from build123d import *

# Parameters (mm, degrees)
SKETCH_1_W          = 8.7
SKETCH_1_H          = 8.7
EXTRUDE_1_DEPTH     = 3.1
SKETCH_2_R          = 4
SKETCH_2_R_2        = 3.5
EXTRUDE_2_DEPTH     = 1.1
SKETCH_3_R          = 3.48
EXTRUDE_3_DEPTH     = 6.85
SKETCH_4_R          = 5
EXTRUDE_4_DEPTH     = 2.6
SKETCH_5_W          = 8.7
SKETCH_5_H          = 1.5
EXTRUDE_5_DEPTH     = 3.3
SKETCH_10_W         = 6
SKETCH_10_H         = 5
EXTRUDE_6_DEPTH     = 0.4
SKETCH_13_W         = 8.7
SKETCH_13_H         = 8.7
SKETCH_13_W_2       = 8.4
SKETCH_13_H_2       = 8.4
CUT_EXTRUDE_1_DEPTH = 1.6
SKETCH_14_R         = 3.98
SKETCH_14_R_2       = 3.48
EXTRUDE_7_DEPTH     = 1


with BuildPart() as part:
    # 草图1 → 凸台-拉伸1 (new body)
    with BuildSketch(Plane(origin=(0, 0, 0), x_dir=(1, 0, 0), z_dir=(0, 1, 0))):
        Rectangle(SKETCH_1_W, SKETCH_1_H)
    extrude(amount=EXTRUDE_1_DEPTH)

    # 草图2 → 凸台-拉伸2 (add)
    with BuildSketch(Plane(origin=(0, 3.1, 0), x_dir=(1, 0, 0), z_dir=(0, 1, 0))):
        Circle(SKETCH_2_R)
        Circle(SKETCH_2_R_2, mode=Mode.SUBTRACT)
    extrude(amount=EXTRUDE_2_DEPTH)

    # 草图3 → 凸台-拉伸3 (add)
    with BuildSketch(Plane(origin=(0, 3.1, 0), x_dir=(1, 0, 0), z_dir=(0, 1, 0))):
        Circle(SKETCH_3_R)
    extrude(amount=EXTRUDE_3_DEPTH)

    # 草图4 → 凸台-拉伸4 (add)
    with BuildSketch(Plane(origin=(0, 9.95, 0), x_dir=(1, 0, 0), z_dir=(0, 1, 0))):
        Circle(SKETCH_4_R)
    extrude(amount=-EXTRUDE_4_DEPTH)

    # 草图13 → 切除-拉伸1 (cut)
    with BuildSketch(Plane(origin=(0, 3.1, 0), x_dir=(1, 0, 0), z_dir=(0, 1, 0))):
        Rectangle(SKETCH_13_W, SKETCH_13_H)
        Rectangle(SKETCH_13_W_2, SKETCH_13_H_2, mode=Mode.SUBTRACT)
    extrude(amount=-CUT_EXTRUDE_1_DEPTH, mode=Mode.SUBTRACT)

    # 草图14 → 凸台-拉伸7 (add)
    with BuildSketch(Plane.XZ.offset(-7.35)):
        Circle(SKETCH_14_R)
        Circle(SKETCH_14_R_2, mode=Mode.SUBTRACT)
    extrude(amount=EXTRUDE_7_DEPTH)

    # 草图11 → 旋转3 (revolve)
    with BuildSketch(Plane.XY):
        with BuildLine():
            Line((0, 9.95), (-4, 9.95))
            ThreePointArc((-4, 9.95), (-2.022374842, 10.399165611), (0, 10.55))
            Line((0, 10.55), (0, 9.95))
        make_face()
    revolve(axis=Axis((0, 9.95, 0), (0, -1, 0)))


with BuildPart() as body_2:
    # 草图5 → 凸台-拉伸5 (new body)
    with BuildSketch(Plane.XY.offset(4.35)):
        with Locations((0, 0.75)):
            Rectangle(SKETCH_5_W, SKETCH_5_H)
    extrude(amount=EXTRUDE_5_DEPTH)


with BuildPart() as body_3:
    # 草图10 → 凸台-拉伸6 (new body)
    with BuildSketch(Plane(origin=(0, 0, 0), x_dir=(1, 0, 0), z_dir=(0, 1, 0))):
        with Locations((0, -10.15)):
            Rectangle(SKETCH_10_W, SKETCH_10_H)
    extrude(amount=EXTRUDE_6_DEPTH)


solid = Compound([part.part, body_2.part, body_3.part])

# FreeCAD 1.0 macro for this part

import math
import FreeCAD as App
import Part
import Sketcher

V = App.Vector

doc = App.newDocument("Part")
body = doc.addObject("PartDesign::Body", "Body")

# Sketch on XZ plane
sketch1 = doc.addObject("Sketcher::SketchObject", "Sketch")
body.addObject(sketch1)
sketch1.AttachmentSupport = (doc.XZ_Plane, [""])
sketch1.MapMode = "FlatFace"
sketch1.addGeometry(Part.LineSegment(V(-4.35, -4.35, 0), V(-4.35, 4.35, 0)), False)
sketch1.addGeometry(Part.LineSegment(V(-4.35, 4.35, 0), V(4.35, 4.35, 0)), False)
sketch1.addGeometry(Part.LineSegment(V(4.35, 4.35, 0), V(4.35, -4.35, 0)), False)
sketch1.addGeometry(Part.LineSegment(V(4.35, -4.35, 0), V(-4.35, -4.35, 0)), False)
sketch1.addConstraint(Sketcher.Constraint("Coincident", 0, 2, 1, 1))
sketch1.addConstraint(Sketcher.Constraint("Coincident", 1, 2, 2, 1))
sketch1.addConstraint(Sketcher.Constraint("Coincident", 2, 2, 3, 1))
sketch1.addConstraint(Sketcher.Constraint("Coincident", 3, 2, 0, 1))
sketch1.addConstraint(Sketcher.Constraint("Vertical", 0))
sketch1.addConstraint(Sketcher.Constraint("Horizontal", 1))
sketch1.addConstraint(Sketcher.Constraint("Vertical", 2))
sketch1.addConstraint(Sketcher.Constraint("Horizontal", 3))
sketch1.addConstraint(Sketcher.Constraint("Symmetric", 0, 2, 2, 2, -1, 1))
sketch1.addConstraint(Sketcher.Constraint("Equal", 3, 0))
sketch1.addConstraint(Sketcher.Constraint("DistanceX", 1, 1, 1, 2, 8.7))
pad1 = doc.addObject("PartDesign::Pad", "Pad")
body.addObject(pad1)
pad1.Profile = sketch1
pad1.Length = 3.1
pad1.Reversed = True

# Sketch on XZ plane
sketch2 = doc.addObject("Sketcher::SketchObject", "Sketch001")
body.addObject(sketch2)
sketch2.AttachmentSupport = (doc.XZ_Plane, [""])
sketch2.MapMode = "FlatFace"
sketch2.AttachmentOffset = App.Placement(V(0, 0, -3.1), App.Rotation())
sketch2.addGeometry(Part.Circle(V(0, 0, 0), V(0, 0, 1), 4), False)
sketch2.addGeometry(Part.Circle(V(0, 0, 0), V(0, 0, 1), 3.5), False)
sketch2.addConstraint(Sketcher.Constraint("Coincident", 0, 3, -1, 1))
sketch2.addConstraint(Sketcher.Constraint("Coincident", 1, 3, -1, 1))
sketch2.addConstraint(Sketcher.Constraint("Diameter", 0, 8.0))
sketch2.addConstraint(Sketcher.Constraint("Diameter", 1, 7.0))
pad2 = doc.addObject("PartDesign::Pad", "Pad001")
body.addObject(pad2)
pad2.Profile = sketch2
pad2.Length = 1.1
pad2.Reversed = True

# Sketch on XZ plane
sketch3 = doc.addObject("Sketcher::SketchObject", "Sketch002")
body.addObject(sketch3)
sketch3.AttachmentSupport = (doc.XZ_Plane, [""])
sketch3.MapMode = "FlatFace"
sketch3.AttachmentOffset = App.Placement(V(0, 0, -3.1), App.Rotation())
sketch3.addGeometry(Part.Circle(V(0, 0, 0), V(0, 0, 1), 3.48), False)
sketch3.addConstraint(Sketcher.Constraint("Coincident", 0, 3, -1, 1))
sketch3.addConstraint(Sketcher.Constraint("Diameter", 0, 6.96))
pad3 = doc.addObject("PartDesign::Pad", "Pad002")
body.addObject(pad3)
pad3.Profile = sketch3
pad3.Length = 6.85
pad3.Reversed = True

# Sketch on XZ plane
sketch4 = doc.addObject("Sketcher::SketchObject", "Sketch003")
body.addObject(sketch4)
sketch4.AttachmentSupport = (doc.XZ_Plane, [""])
sketch4.MapMode = "FlatFace"
sketch4.AttachmentOffset = App.Placement(V(0, 0, -9.95), App.Rotation())
sketch4.addGeometry(Part.Circle(V(0, 0, 0), V(0, 0, 1), 5), False)
sketch4.addConstraint(Sketcher.Constraint("Coincident", 0, 3, -1, 1))
sketch4.addConstraint(Sketcher.Constraint("Diameter", 0, 10.0))
pad4 = doc.addObject("PartDesign::Pad", "Pad003")
body.addObject(pad4)
pad4.Profile = sketch4
pad4.Length = 2.6

# Sketch on XZ plane
sketch5 = doc.addObject("Sketcher::SketchObject", "Sketch004")
body.addObject(sketch5)
sketch5.AttachmentSupport = (doc.XZ_Plane, [""])
sketch5.MapMode = "FlatFace"
sketch5.AttachmentOffset = App.Placement(V(0, 0, -3.1), App.Rotation())
sketch5.addGeometry(Part.LineSegment(V(-4.35, -4.35, 0), V(-4.35, 4.35, 0)), False)
sketch5.addGeometry(Part.LineSegment(V(-4.35, 4.35, 0), V(4.35, 4.35, 0)), False)
sketch5.addGeometry(Part.LineSegment(V(4.35, 4.35, 0), V(4.35, -4.35, 0)), False)
sketch5.addGeometry(Part.LineSegment(V(4.35, -4.35, 0), V(-4.35, -4.35, 0)), False)
sketch5.addGeometry(Part.LineSegment(V(4.2, 4.2, 0), V(-4.2, 4.2, 0)), False)
sketch5.addGeometry(Part.LineSegment(V(-4.2, 4.2, 0), V(-4.2, -4.2, 0)), False)
sketch5.addGeometry(Part.LineSegment(V(-4.2, -4.2, 0), V(4.2, -4.2, 0)), False)
sketch5.addGeometry(Part.LineSegment(V(4.2, -4.2, 0), V(4.2, 4.2, 0)), False)
sketch5.addConstraint(Sketcher.Constraint("Coincident", 0, 2, 1, 1))
sketch5.addConstraint(Sketcher.Constraint("Coincident", 1, 2, 2, 1))
sketch5.addConstraint(Sketcher.Constraint("Coincident", 2, 2, 3, 1))
sketch5.addConstraint(Sketcher.Constraint("Coincident", 3, 2, 0, 1))
sketch5.addConstraint(Sketcher.Constraint("Coincident", 4, 2, 5, 1))
sketch5.addConstraint(Sketcher.Constraint("Coincident", 5, 2, 6, 1))
sketch5.addConstraint(Sketcher.Constraint("Coincident", 6, 2, 7, 1))
sketch5.addConstraint(Sketcher.Constraint("Coincident", 7, 2, 4, 1))
sketch5.addConstraint(Sketcher.Constraint("Vertical", 0))
sketch5.addConstraint(Sketcher.Constraint("Horizontal", 1))
sketch5.addConstraint(Sketcher.Constraint("Vertical", 2))
sketch5.addConstraint(Sketcher.Constraint("Horizontal", 3))
sketch5.addConstraint(Sketcher.Constraint("Horizontal", 4))
sketch5.addConstraint(Sketcher.Constraint("Vertical", 5))
sketch5.addConstraint(Sketcher.Constraint("Horizontal", 6))
sketch5.addConstraint(Sketcher.Constraint("Vertical", 7))
sketch5.addConstraint(Sketcher.Constraint("Symmetric", 0, 2, 2, 2, -1, 1))
sketch5.addConstraint(Sketcher.Constraint("Symmetric", 4, 2, 6, 2, -1, 1))
sketch5.addConstraint(Sketcher.Constraint("Equal", 3, 0))
sketch5.addConstraint(Sketcher.Constraint("Equal", 6, 5))
sketch5.addConstraint(Sketcher.Constraint("DistanceX", 1, 1, 1, 2, 8.7))
sketch5.addConstraint(Sketcher.Constraint("DistanceX", 4, 2, 4, 1, 8.4))
pocket1 = doc.addObject("PartDesign::Pocket", "Pocket")
body.addObject(pocket1)
pocket1.Profile = sketch5
pocket1.Length = 1.6
pocket1.Reversed = True

# Sketch on XZ plane
sketch6 = doc.addObject("Sketcher::SketchObject", "Sketch005")
body.addObject(sketch6)
sketch6.AttachmentSupport = (doc.XZ_Plane, [""])
sketch6.MapMode = "FlatFace"
sketch6.AttachmentOffset = App.Placement(V(0, 0, -7.35), App.Rotation())
sketch6.addGeometry(Part.Circle(V(0, 0, 0), V(0, 0, 1), 3.98), False)
sketch6.addGeometry(Part.Circle(V(0, 0, 0), V(0, 0, 1), 3.48), False)
sketch6.addConstraint(Sketcher.Constraint("Coincident", 0, 3, -1, 1))
sketch6.addConstraint(Sketcher.Constraint("Coincident", 1, 3, -1, 1))
sketch6.addConstraint(Sketcher.Constraint("Diameter", 0, 7.96))
sketch6.addConstraint(Sketcher.Constraint("Diameter", 1, 6.96))
pad5 = doc.addObject("PartDesign::Pad", "Pad004")
body.addObject(pad5)
pad5.Profile = sketch6
pad5.Length = 1

# Sketch on XY plane
sketch7 = doc.addObject("Sketcher::SketchObject", "Sketch006")
body.addObject(sketch7)
sketch7.AttachmentSupport = (doc.XY_Plane, [""])
sketch7.MapMode = "FlatFace"
sketch7.addGeometry(Part.LineSegment(V(-4, 9.95, 0), V(0, 9.95, 0)), False)
sketch7.addGeometry(Part.LineSegment(V(0, 9.95, 0), V(0, 10.55, 0)), False)
sketch7.addGeometry(Part.ArcOfCircle(Part.Circle(V(0, -3.083333, 0), V(0, 0, 1), 13.633333), math.radians(90), math.radians(107.061531)), False)
sketch7.addConstraint(Sketcher.Constraint("Coincident", 0, 2, 1, 1))
sketch7.addConstraint(Sketcher.Constraint("Coincident", 1, 2, 2, 1))
sketch7.addConstraint(Sketcher.Constraint("Coincident", 2, 2, 0, 1))
sketch7.addConstraint(Sketcher.Constraint("Horizontal", 0))
sketch7.addConstraint(Sketcher.Constraint("Vertical", 1))
sketch7.addConstraint(Sketcher.Constraint("PointOnObject", 2, 3, -2))
sketch7.addConstraint(Sketcher.Constraint("PointOnObject", 0, 2, -2))
sketch7.addConstraint(Sketcher.Constraint("DistanceX", 0, 1, 0, 2, 4.0))
sketch7.addConstraint(Sketcher.Constraint("DistanceY", 1, 1, 1, 2, 0.6))
sketch7.addConstraint(Sketcher.Constraint("DistanceY", -1, 1, 0, 2, 9.95))
revolution = doc.addObject("PartDesign::Revolution", "Revolution")
body.addObject(revolution)
revolution.Profile = sketch7
revolution.ReferenceAxis = (sketch7, ["V_Axis"])
revolution.Angle = 360
body2 = doc.addObject("PartDesign::Body", "Body001")

# Sketch on XY plane
sketch8 = doc.addObject("Sketcher::SketchObject", "Sketch007")
body2.addObject(sketch8)
sketch8.AttachmentSupport = (doc.getObject("XY_Plane001"), [""])
sketch8.MapMode = "FlatFace"
sketch8.AttachmentOffset = App.Placement(V(0, 0, 4.35), App.Rotation())
sketch8.addGeometry(Part.LineSegment(V(-4.35, 1.5, 0), V(-4.35, 0, 0)), False)
sketch8.addGeometry(Part.LineSegment(V(-4.35, 0, 0), V(4.35, 0, 0)), False)
sketch8.addGeometry(Part.LineSegment(V(4.35, 0, 0), V(4.35, 1.5, 0)), False)
sketch8.addGeometry(Part.LineSegment(V(4.35, 1.5, 0), V(-4.35, 1.5, 0)), False)
sketch8.addConstraint(Sketcher.Constraint("Coincident", 0, 2, 1, 1))
sketch8.addConstraint(Sketcher.Constraint("Coincident", 1, 2, 2, 1))
sketch8.addConstraint(Sketcher.Constraint("Coincident", 2, 2, 3, 1))
sketch8.addConstraint(Sketcher.Constraint("Coincident", 3, 2, 0, 1))
sketch8.addConstraint(Sketcher.Constraint("Vertical", 0))
sketch8.addConstraint(Sketcher.Constraint("Horizontal", 1))
sketch8.addConstraint(Sketcher.Constraint("Vertical", 2))
sketch8.addConstraint(Sketcher.Constraint("Horizontal", 3))
sketch8.addConstraint(Sketcher.Constraint("Symmetric", 0, 2, 1, 2, -1, 1))
sketch8.addConstraint(Sketcher.Constraint("DistanceX", 1, 1, 1, 2, 8.7))
sketch8.addConstraint(Sketcher.Constraint("DistanceY", 0, 2, 0, 1, 1.5))
pad6 = doc.addObject("PartDesign::Pad", "Pad005")
body2.addObject(pad6)
pad6.Profile = sketch8
pad6.Length = 3.3
body3 = doc.addObject("PartDesign::Body", "Body002")

# Sketch on XZ plane
sketch9 = doc.addObject("Sketcher::SketchObject", "Sketch008")
body3.addObject(sketch9)
sketch9.AttachmentSupport = (doc.getObject("XZ_Plane002"), [""])
sketch9.MapMode = "FlatFace"
sketch9.addGeometry(Part.LineSegment(V(-3, 7.65, 0), V(-3, 12.65, 0)), False)
sketch9.addGeometry(Part.LineSegment(V(-3, 12.65, 0), V(3, 12.65, 0)), False)
sketch9.addGeometry(Part.LineSegment(V(3, 12.65, 0), V(3, 7.65, 0)), False)
sketch9.addGeometry(Part.LineSegment(V(3, 7.65, 0), V(-3, 7.65, 0)), False)
sketch9.addConstraint(Sketcher.Constraint("Coincident", 0, 2, 1, 1))
sketch9.addConstraint(Sketcher.Constraint("Coincident", 1, 2, 2, 1))
sketch9.addConstraint(Sketcher.Constraint("Coincident", 2, 2, 3, 1))
sketch9.addConstraint(Sketcher.Constraint("Coincident", 3, 2, 0, 1))
sketch9.addConstraint(Sketcher.Constraint("Vertical", 0))
sketch9.addConstraint(Sketcher.Constraint("Horizontal", 1))
sketch9.addConstraint(Sketcher.Constraint("Vertical", 2))
sketch9.addConstraint(Sketcher.Constraint("Horizontal", 3))
sketch9.addConstraint(Sketcher.Constraint("DistanceX", 1, 1, 1, 2, 6.0))
sketch9.addConstraint(Sketcher.Constraint("DistanceY", 0, 1, 0, 2, 5.0))
sketch9.addConstraint(Sketcher.Constraint("DistanceX", 0, 2, -1, 1, 3.0))
sketch9.addConstraint(Sketcher.Constraint("DistanceY", -1, 1, 0, 2, 12.65))
pad7 = doc.addObject("PartDesign::Pad", "Pad006")
body3.addObject(pad7)
pad7.Profile = sketch9
pad7.Length = 0.4
pad7.Reversed = True

doc.recompute()
